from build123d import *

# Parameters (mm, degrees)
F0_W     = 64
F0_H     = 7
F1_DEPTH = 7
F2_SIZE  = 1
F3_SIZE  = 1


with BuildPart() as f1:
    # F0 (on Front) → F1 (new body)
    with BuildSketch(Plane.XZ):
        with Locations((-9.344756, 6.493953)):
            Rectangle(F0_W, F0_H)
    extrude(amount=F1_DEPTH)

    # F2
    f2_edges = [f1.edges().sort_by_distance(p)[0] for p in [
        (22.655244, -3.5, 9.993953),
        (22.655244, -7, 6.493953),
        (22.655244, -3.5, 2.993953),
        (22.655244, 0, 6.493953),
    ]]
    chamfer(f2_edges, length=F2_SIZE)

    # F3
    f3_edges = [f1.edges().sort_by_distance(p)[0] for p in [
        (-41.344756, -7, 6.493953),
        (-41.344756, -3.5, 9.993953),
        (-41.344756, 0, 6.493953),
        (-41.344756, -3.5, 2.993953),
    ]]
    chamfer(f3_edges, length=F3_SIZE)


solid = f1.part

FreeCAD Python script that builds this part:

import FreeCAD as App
import Part
import Sketcher

V = App.Vector
Q = App.Units.Quantity


def edges_at(feature, points):
    """Names of the edges that pass closest to the given points."""
    edges = feature.Shape.Edges
    near = lambda p: min(range(len(edges)), key=lambda i: edges[i].distToShape(Part.Vertex(*p))[0])
    return sorted({f"Edge{near(p) + 1}" for p in points})


def add_polygon(sketch, points):
    """Adds a closed chain of lines whose ends are joined by coincident constraints."""
    first, n = sketch.GeometryCount, len(points)
    for a, b in zip(points, points[1:] + points[:1]):
        sketch.addGeometry(Part.LineSegment(App.Vector(*a, 0), App.Vector(*b, 0)), False)
    for i in range(n):
        sketch.addConstraint(Sketcher.Constraint("Coincident", first + i, 2, first + (i + 1) % n, 1))

doc = App.newDocument("Part")
body = doc.addObject("PartDesign::Body", "Body")

# Sketch on XZ plane
sketch1 = doc.addObject("Sketcher::SketchObject", "Sketch")
body.addObject(sketch1)
sketch1.AttachmentSupport = (doc.XZ_Plane, [""])
sketch1.MapMode = "FlatFace"
add_polygon(sketch1, [(-41.344756, 9.993953), (-41.344756, 2.993953), (22.655244, 2.993953), (22.655244, 9.993953)])  # lines 0-3
sketch1.addConstraint([
    Sketcher.Constraint("Vertical", 0),
    Sketcher.Constraint("Horizontal", 1),
    Sketcher.Constraint("Vertical", 2),
    Sketcher.Constraint("Horizontal", 3),
    Sketcher.Constraint("DistanceX", 1, 1, 1, 2, Q("64 mm")),
    Sketcher.Constraint("DistanceY", 0, 2, 0, 1, Q("7 mm")),
    Sketcher.Constraint("DistanceX", 0, 2, -1, 1, Q("41.344756 mm")),
    Sketcher.Constraint("DistanceY", -1, 1, 0, 2, Q("2.993953 mm")),
])
pad1 = doc.addObject("PartDesign::Pad", "Pad")
body.addObject(pad1)
pad1.Profile = sketch1
pad1.Length = 7
doc.recompute()

chamfer = doc.addObject("PartDesign::Chamfer", "Chamfer")
body.addObject(chamfer)
chamfer.Base = (pad1, edges_at(pad1, [
    (22.655, -3.5, 9.994),
    (22.655, -7, 6.494),
    (22.655, -3.5, 2.994),
    (22.655, 0, 6.494),
]))
chamfer.Size = 1
doc.recompute()

chamfer2 = doc.addObject("PartDesign::Chamfer", "Chamfer001")
body.addObject(chamfer2)
chamfer2.Base = (chamfer, edges_at(chamfer, [
    (-41.345, -7, 6.494),
    (-41.345, -3.5, 9.994),
    (-41.345, 0, 6.494),
    (-41.345, -3.5, 2.994),
]))
chamfer2.Size = 1

doc.recompute()
